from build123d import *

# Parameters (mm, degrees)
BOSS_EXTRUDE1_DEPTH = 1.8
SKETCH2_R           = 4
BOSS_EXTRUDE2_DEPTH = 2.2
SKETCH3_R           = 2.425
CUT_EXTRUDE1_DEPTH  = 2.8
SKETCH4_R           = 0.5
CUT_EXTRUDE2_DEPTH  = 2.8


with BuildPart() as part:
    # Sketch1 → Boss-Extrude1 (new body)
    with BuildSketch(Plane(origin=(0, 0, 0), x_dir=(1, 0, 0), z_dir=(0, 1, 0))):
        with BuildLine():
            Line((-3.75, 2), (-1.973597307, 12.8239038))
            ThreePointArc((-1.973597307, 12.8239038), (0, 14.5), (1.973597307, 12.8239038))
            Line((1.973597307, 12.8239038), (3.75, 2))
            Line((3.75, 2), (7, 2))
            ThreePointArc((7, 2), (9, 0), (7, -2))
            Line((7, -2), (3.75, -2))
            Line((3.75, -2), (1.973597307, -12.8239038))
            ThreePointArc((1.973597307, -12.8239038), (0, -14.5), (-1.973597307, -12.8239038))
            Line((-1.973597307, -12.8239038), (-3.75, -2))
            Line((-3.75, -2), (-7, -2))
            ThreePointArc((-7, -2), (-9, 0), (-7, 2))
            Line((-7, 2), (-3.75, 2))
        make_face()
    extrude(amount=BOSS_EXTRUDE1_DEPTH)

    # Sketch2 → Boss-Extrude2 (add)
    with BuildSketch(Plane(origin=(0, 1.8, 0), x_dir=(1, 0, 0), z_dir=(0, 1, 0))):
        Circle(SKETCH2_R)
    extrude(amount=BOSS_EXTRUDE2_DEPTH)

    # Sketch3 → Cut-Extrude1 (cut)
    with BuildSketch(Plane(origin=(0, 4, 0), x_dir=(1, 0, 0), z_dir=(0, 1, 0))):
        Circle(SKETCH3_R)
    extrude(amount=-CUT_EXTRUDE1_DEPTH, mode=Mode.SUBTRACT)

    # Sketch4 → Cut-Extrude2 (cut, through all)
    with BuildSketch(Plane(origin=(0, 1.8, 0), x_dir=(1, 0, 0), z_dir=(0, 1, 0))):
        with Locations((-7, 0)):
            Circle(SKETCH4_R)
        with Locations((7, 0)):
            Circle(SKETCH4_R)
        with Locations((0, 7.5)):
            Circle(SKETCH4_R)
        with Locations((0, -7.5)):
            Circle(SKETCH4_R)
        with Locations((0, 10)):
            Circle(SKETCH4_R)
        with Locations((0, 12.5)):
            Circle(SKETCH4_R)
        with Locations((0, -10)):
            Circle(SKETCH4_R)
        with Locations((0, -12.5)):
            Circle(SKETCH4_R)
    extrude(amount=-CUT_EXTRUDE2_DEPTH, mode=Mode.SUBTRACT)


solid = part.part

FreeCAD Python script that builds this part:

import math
import FreeCAD as App
import Part
import Sketcher

V = App.Vector

doc = App.newDocument("Part")
body = doc.addObject("PartDesign::Body", "Body")

sketch1 = doc.addObject("Sketcher::SketchObject", "Sketch")
body.addObject(sketch1)
sketch1.AttachmentSupport = (doc.XZ_Plane, [""])
sketch1.MapMode = "FlatFace"
sketch1.addGeometry(Part.LineSegment(V(-2, -12.8, 0), V(-3.8, -2, 0)), False)
sketch1.addGeometry(Part.LineSegment(V(-3.8, -2, 0), V(-7, -2, 0)), False)
sketch1.addGeometry(Part.ArcOfCircle(Part.Circle(V(-7, 0, 0), V(0, 0, 1), 2), math.radians(90), math.radians(270)), False)
sketch1.addGeometry(Part.LineSegment(V(-7, 2, 0), V(-3.8, 2, 0)), False)
sketch1.addGeometry(Part.LineSegment(V(-3.8, 2, 0), V(-2, 12.8, 0)), False)
sketch1.addGeometry(Part.ArcOfCircle(Part.Circle(V(0, 12.5, 0), V(0, 0, 1), 2), math.radians(9), math.radians(171)), False)
sketch1.addGeometry(Part.LineSegment(V(2, 12.8, 0), V(3.8, 2, 0)), False)
sketch1.addGeometry(Part.LineSegment(V(3.8, 2, 0), V(7, 2, 0)), False)
sketch1.addGeometry(Part.ArcOfCircle(Part.Circle(V(7, 0, 0), V(0, 0, 1), 2), math.radians(-90), math.radians(90)), False)
sketch1.addGeometry(Part.LineSegment(V(7, -2, 0), V(3.8, -2, 0)), False)
sketch1.addGeometry(Part.LineSegment(V(3.8, -2, 0), V(2, -12.8, 0)), False)
sketch1.addGeometry(Part.ArcOfCircle(Part.Circle(V(0, -12.5, 0), V(0, 0, 1), 2), math.radians(-171), math.radians(-9)), False)
sketch1.addConstraint(Sketcher.Constraint("Coincident", 0, 2, 1, 1))
sketch1.addConstraint(Sketcher.Constraint("Tangent", 1, 2, 2, 2))
sketch1.addConstraint(Sketcher.Constraint("Tangent", 2, 1, 3, 1))
sketch1.addConstraint(Sketcher.Constraint("Coincident", 3, 2, 4, 1))
sketch1.addConstraint(Sketcher.Constraint("Tangent", 4, 2, 5, 2))
sketch1.addConstraint(Sketcher.Constraint("Tangent", 5, 1, 6, 1))
sketch1.addConstraint(Sketcher.Constraint("Coincident", 6, 2, 7, 1))
sketch1.addConstraint(Sketcher.Constraint("Tangent", 7, 2, 8, 2))
sketch1.addConstraint(Sketcher.Constraint("Tangent", 8, 1, 9, 1))
sketch1.addConstraint(Sketcher.Constraint("Coincident", 9, 2, 10, 1))
sketch1.addConstraint(Sketcher.Constraint("Tangent", 10, 2, 11, 2))
sketch1.addConstraint(Sketcher.Constraint("Tangent", 11, 1, 0, 1))
sketch1.addConstraint(Sketcher.Constraint("Horizontal", 1))
sketch1.addConstraint(Sketcher.Constraint("Horizontal", 3))
sketch1.addConstraint(Sketcher.Constraint("Horizontal", 7))
sketch1.addConstraint(Sketcher.Constraint("Horizontal", 9))
sketch1.addConstraint(Sketcher.Constraint("Equal", 2, 5))
sketch1.addConstraint(Sketcher.Constraint("Equal", 5, 8))
sketch1.addConstraint(Sketcher.Constraint("Equal", 8, 11))
sketch1.addConstraint(Sketcher.Constraint("Symmetric", 2, 3, 8, 3, -1, 1))
sketch1.addConstraint(Sketcher.Constraint("Symmetric", 5, 3, 11, 3, -1, 1))
sketch1.addConstraint(Sketcher.Constraint("Symmetric", 4, 2, 5, 1, -2))
sketch1.addConstraint(Sketcher.Constraint("Symmetric", 0, 2, 9, 2, -2))
sketch1.addConstraint(Sketcher.Constraint("Parallel", 0, 6))
sketch1.addConstraint(Sketcher.Constraint("Radius", 2, 2.0))
sketch1.addConstraint(Sketcher.Constraint("DistanceX", 2, 3, -1, 1, 7.0))
sketch1.addConstraint(Sketcher.Constraint("DistanceY", 11, 3, 5, 3, 25.0))
sketch1.addConstraint(Sketcher.Constraint("DistanceX", 1, 2, 1, 1, 3.25))
pad1 = doc.addObject("PartDesign::Pad", "Pad")
body.addObject(pad1)
pad1.Profile = sketch1
pad1.Length = 1.8
pad1.Reversed = True

sketch2 = doc.addObject("Sketcher::SketchObject", "Sketch001")
body.addObject(sketch2)
sketch2.AttachmentSupport = (doc.XZ_Plane, [""])
sketch2.MapMode = "FlatFace"
sketch2.AttachmentOffset = App.Placement(V(0, 0, -1.8), App.Rotation())
sketch2.addGeometry(Part.Circle(V(0, 0, 0), V(0, 0, 1), 4), False)
sketch2.addConstraint(Sketcher.Constraint("Coincident", 0, 3, -1, 1))
sketch2.addConstraint(Sketcher.Constraint("Diameter", 0, 8.0))
pad2 = doc.addObject("PartDesign::Pad", "Pad001")
body.addObject(pad2)
pad2.Profile = sketch2
pad2.Length = 2.2
pad2.Reversed = True

sketch3 = doc.addObject("Sketcher::SketchObject", "Sketch002")
body.addObject(sketch3)
sketch3.AttachmentSupport = (doc.XZ_Plane, [""])
sketch3.MapMode = "FlatFace"
sketch3.AttachmentOffset = App.Placement(V(0, 0, -4), App.Rotation())
sketch3.addGeometry(Part.Circle(V(0, 0, 0), V(0, 0, 1), 2.4), False)
sketch3.addConstraint(Sketcher.Constraint("Coincident", 0, 3, -1, 1))
sketch3.addConstraint(Sketcher.Constraint("Diameter", 0, 4.85))
pocket1 = doc.addObject("PartDesign::Pocket", "Pocket")
body.addObject(pocket1)
pocket1.Profile = sketch3
pocket1.Length = 2.8
pocket1.Reversed = True

sketch4 = doc.addObject("Sketcher::SketchObject", "Sketch003")
body.addObject(sketch4)
sketch4.AttachmentSupport = (doc.XZ_Plane, [""])
sketch4.MapMode = "FlatFace"
sketch4.AttachmentOffset = App.Placement(V(0, 0, -1.8), App.Rotation())
sketch4.addGeometry(Part.Circle(V(-7, 0, 0), V(0, 0, 1), 0.5), False)
sketch4.addGeometry(Part.Circle(V(7, 0, 0), V(0, 0, 1), 0.5), False)
sketch4.addGeometry(Part.Circle(V(0, -7.5, 0), V(0, 0, 1), 0.5), False)
sketch4.addGeometry(Part.Circle(V(0, 7.5, 0), V(0, 0, 1), 0.5), False)
sketch4.addGeometry(Part.Circle(V(0, -10, 0), V(0, 0, 1), 0.5), False)
sketch4.addGeometry(Part.Circle(V(0, -12.5, 0), V(0, 0, 1), 0.5), False)
sketch4.addGeometry(Part.Circle(V(0, 10, 0), V(0, 0, 1), 0.5), False)
sketch4.addGeometry(Part.Circle(V(0, 12.5, 0), V(0, 0, 1), 0.5), False)
sketch4.addConstraint(Sketcher.Constraint("Equal", 0, 1))
sketch4.addConstraint(Sketcher.Constraint("Equal", 1, 2))
sketch4.addConstraint(Sketcher.Constraint("Equal", 2, 3))
sketch4.addConstraint(Sketcher.Constraint("Equal", 3, 4))
sketch4.addConstraint(Sketcher.Constraint("Equal", 4, 5))
sketch4.addConstraint(Sketcher.Constraint("Equal", 5, 6))
sketch4.addConstraint(Sketcher.Constraint("Equal", 6, 7))
sketch4.addConstraint(Sketcher.Constraint("Symmetric", 0, 3, 1, 3, -1, 1))
sketch4.addConstraint(Sketcher.Constraint("Symmetric", 2, 3, 3, 3, -1, 1))
sketch4.addConstraint(Sketcher.Constraint("Symmetric", 4, 3, 6, 3, -1, 1))
sketch4.addConstraint(Sketcher.Constraint("Symmetric", 5, 3, 7, 3, -1, 1))
sketch4.addConstraint(Sketcher.Constraint("PointOnObject", 0, 3, -1))
sketch4.addConstraint(Sketcher.Constraint("PointOnObject", 2, 3, -2))
sketch4.addConstraint(Sketcher.Constraint("PointOnObject", 4, 3, -2))
sketch4.addConstraint(Sketcher.Constraint("PointOnObject", 5, 3, -2))
sketch4.addConstraint(Sketcher.Constraint("Diameter", 0, 1.0))
sketch4.addConstraint(Sketcher.Constraint("DistanceX", 0, 3, -1, 1, 7.0))
sketch4.addConstraint(Sketcher.Constraint("DistanceY", 4, 3, -1, 1, 10.0))
sketch4.addConstraint(Sketcher.Constraint("DistanceY", 2, 3, 3, 3, 15.0))
sketch4.addConstraint(Sketcher.Constraint("DistanceY", 5, 3, 2, 3, 5.0))
pocket2 = doc.addObject("PartDesign::Pocket", "Pocket001")
body.addObject(pocket2)
pocket2.Profile = sketch4
pocket2.Type = "ThroughAll"
pocket2.Reversed = True

doc.recompute()
